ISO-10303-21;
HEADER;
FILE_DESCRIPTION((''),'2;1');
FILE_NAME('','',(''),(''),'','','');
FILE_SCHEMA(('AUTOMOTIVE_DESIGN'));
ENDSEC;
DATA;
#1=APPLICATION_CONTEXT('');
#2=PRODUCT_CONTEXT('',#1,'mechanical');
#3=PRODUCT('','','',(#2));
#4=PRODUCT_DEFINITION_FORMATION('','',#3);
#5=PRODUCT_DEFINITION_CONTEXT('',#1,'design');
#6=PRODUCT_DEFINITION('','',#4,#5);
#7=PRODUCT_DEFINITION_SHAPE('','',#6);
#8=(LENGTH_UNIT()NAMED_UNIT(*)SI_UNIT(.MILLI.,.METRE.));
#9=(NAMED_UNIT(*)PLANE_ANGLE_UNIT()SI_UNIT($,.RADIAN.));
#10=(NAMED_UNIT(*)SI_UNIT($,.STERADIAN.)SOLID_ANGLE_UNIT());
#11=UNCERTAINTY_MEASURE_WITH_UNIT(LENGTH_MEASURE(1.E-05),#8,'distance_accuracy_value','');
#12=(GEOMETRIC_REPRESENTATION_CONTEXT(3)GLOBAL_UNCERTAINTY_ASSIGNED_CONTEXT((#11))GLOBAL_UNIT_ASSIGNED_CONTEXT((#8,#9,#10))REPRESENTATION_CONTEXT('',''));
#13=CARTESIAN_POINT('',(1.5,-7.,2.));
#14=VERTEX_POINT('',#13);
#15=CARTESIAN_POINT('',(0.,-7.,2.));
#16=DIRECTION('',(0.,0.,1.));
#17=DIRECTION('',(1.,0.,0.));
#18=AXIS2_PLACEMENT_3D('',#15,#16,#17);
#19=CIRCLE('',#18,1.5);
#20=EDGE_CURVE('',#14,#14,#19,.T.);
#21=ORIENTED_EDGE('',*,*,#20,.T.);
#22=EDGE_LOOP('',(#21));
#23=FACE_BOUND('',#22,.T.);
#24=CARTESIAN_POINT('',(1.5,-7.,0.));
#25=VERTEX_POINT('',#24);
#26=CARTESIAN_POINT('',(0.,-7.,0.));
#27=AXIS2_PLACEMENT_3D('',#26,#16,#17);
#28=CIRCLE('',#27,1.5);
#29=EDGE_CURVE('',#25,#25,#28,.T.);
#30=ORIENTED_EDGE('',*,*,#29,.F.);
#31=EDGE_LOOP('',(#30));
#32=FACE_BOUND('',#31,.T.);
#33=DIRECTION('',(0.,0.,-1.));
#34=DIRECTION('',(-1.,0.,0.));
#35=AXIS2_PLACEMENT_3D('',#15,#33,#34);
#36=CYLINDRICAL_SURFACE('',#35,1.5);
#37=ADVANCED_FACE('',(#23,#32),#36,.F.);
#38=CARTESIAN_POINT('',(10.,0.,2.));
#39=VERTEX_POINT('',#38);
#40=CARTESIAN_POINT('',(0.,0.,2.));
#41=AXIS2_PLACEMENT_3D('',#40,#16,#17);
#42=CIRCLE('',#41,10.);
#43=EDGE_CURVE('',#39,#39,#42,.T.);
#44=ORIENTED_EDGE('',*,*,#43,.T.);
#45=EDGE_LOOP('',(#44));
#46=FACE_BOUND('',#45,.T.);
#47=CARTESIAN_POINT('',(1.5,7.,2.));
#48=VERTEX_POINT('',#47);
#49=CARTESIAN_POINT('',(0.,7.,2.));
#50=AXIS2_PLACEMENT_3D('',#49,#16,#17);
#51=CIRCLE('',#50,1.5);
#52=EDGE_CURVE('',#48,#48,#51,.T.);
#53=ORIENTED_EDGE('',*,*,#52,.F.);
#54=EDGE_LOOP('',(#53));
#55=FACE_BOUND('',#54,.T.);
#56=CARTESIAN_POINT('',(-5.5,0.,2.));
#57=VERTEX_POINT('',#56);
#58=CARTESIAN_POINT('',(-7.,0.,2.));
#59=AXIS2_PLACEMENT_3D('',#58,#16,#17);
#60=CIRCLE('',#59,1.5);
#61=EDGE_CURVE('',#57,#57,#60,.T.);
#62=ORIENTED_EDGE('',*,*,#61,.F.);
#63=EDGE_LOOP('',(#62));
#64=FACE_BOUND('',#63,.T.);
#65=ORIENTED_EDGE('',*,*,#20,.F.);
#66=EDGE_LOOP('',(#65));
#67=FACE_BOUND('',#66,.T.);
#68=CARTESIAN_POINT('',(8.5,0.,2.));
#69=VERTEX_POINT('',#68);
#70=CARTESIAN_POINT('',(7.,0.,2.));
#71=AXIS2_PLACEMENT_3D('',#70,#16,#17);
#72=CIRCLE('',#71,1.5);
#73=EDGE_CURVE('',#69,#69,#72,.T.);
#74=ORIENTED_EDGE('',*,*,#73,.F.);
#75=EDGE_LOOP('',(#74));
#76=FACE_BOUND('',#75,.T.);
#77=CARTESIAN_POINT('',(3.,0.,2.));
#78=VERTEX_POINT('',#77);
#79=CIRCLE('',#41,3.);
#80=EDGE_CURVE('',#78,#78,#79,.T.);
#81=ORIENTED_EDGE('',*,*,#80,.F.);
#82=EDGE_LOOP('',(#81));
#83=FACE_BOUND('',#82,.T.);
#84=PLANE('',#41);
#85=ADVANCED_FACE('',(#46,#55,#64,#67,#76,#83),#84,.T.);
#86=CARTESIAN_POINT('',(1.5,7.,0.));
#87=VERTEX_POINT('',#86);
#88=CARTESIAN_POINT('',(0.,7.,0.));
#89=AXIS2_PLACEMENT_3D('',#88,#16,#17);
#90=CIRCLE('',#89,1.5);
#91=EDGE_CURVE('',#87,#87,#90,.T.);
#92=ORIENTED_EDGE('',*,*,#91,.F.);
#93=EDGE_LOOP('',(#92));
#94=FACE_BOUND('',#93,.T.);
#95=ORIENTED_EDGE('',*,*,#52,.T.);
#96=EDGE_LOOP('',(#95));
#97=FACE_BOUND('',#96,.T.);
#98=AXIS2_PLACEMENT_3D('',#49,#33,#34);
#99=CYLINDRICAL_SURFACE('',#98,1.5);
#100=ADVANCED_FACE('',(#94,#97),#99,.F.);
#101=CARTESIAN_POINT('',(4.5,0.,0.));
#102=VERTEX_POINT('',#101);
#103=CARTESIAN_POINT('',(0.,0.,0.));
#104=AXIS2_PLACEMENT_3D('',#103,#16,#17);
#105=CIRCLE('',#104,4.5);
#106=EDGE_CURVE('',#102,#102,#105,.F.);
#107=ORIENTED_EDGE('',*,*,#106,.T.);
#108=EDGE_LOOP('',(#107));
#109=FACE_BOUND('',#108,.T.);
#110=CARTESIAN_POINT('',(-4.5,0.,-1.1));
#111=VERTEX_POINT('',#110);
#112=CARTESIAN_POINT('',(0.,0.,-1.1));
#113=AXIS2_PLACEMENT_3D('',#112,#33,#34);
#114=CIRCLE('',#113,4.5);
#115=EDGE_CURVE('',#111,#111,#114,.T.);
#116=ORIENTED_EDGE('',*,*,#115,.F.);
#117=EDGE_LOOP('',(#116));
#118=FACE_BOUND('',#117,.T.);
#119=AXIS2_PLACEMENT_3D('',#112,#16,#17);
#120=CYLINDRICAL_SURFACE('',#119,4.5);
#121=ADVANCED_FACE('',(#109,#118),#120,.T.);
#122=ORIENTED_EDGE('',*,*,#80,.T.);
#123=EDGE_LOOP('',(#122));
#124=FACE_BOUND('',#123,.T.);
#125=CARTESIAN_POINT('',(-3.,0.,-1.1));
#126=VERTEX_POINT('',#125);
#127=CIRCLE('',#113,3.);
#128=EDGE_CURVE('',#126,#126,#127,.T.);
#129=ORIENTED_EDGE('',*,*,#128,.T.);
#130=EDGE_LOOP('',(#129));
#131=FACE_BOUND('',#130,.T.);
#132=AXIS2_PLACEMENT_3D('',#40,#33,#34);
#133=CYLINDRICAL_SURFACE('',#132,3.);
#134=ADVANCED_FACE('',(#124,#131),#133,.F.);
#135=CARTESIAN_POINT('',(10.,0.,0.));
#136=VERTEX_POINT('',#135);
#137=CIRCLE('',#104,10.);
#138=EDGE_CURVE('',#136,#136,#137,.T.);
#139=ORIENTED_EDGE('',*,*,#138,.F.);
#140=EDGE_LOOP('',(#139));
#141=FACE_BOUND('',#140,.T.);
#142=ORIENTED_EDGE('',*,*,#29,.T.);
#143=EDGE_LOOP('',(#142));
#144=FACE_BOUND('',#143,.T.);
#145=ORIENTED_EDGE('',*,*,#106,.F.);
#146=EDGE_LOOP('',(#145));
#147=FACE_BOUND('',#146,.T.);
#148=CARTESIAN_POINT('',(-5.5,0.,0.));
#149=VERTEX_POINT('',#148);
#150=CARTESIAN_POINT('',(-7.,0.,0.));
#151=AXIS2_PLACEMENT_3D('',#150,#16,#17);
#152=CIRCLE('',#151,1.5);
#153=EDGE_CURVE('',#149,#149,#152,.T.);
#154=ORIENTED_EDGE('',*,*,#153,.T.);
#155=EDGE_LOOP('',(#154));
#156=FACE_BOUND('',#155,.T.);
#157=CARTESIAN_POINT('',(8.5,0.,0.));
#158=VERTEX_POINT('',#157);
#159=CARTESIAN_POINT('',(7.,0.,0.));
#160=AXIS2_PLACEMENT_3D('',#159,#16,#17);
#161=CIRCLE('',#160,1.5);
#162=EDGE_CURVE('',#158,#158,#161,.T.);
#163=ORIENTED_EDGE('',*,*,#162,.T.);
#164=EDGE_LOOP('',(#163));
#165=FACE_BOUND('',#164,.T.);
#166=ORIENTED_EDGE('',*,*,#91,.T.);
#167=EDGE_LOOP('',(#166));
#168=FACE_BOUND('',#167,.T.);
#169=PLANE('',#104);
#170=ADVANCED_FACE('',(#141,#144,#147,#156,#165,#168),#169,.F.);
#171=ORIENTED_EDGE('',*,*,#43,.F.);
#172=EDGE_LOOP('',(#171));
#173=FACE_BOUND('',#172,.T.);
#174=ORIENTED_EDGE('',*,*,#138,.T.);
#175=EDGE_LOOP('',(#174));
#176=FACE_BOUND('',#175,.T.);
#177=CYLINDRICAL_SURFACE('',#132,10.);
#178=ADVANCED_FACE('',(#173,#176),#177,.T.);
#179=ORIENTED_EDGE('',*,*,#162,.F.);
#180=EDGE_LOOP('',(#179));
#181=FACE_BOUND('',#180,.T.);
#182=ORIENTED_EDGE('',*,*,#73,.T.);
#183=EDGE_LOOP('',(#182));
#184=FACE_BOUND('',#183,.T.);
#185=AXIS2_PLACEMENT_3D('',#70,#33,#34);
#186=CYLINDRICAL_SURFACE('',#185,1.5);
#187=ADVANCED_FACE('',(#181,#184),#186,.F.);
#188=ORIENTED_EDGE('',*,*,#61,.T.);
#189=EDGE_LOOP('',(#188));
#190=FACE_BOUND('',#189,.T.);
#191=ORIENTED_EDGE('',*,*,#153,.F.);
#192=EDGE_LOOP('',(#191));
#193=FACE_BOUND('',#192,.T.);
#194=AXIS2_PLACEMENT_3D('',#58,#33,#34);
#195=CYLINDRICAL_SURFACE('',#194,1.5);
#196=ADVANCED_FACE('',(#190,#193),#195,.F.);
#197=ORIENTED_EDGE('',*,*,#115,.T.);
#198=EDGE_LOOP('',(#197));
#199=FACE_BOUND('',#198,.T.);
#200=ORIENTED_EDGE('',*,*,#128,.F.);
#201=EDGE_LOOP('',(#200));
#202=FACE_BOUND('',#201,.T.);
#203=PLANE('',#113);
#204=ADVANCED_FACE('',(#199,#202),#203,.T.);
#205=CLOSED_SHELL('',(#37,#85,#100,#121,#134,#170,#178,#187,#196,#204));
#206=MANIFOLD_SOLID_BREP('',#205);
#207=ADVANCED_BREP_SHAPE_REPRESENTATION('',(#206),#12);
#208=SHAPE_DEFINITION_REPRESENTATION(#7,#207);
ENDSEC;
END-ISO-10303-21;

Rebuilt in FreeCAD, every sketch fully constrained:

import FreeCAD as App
import Part
import Sketcher

V = App.Vector

doc = App.newDocument("Part")
body = doc.addObject("PartDesign::Body", "Body")

# Sketch on XY plane
sketch1 = doc.addObject("Sketcher::SketchObject", "Sketch")
body.addObject(sketch1)
sketch1.AttachmentSupport = (doc.XY_Plane, [""])
sketch1.MapMode = "FlatFace"
sketch1.addGeometry(Part.Circle(V(0, 0, 0), V(0, 0, 1), 10), False)
sketch1.addGeometry(Part.Circle(V(0, -7, 0), V(0, 0, 1), 1.5), False)
sketch1.addGeometry(Part.Circle(V(-7, 0, 0), V(0, 0, 1), 1.5), False)
sketch1.addGeometry(Part.Circle(V(0, 0, 0), V(0, 0, 1), 3), False)
sketch1.addGeometry(Part.Circle(V(7, 0, 0), V(0, 0, 1), 1.5), False)
sketch1.addGeometry(Part.Circle(V(0, 7, 0), V(0, 0, 1), 1.5), False)
sketch1.addConstraint(Sketcher.Constraint("Coincident", 0, 3, -1, 1))
sketch1.addConstraint(Sketcher.Constraint("Coincident", 3, 3, -1, 1))
sketch1.addConstraint(Sketcher.Constraint("Equal", 1, 2))
sketch1.addConstraint(Sketcher.Constraint("Equal", 2, 4))
sketch1.addConstraint(Sketcher.Constraint("Equal", 4, 5))
sketch1.addConstraint(Sketcher.Constraint("Symmetric", 2, 3, 4, 3, -1, 1))
sketch1.addConstraint(Sketcher.Constraint("Symmetric", 1, 3, 5, 3, -1, 1))
sketch1.addConstraint(Sketcher.Constraint("PointOnObject", 1, 3, -2))
sketch1.addConstraint(Sketcher.Constraint("PointOnObject", 2, 3, -1))
sketch1.addConstraint(Sketcher.Constraint("Diameter", 0, 20.0))
sketch1.addConstraint(Sketcher.Constraint("Diameter", 1, 3.0))
sketch1.addConstraint(Sketcher.Constraint("Diameter", 3, 6.0))
sketch1.addConstraint(Sketcher.Constraint("DistanceY", 1, 3, -1, 1, 7.0))
sketch1.addConstraint(Sketcher.Constraint("DistanceX", 2, 3, -1, 1, 7.0))
pad1 = doc.addObject("PartDesign::Pad", "Pad")
body.addObject(pad1)
pad1.Profile = sketch1
pad1.Length = 2

# Sketch on XY plane
sketch2 = doc.addObject("Sketcher::SketchObject", "Sketch001")
body.addObject(sketch2)
sketch2.AttachmentSupport = (doc.XY_Plane, [""])
sketch2.MapMode = "FlatFace"
sketch2.AttachmentOffset = App.Placement(V(0, 0, -1.1), App.Rotation())
sketch2.addGeometry(Part.Circle(V(0, 0, 0), V(0, 0, 1), 4.5), False)
sketch2.addGeometry(Part.Circle(V(0, 0, 0), V(0, 0, 1), 3), False)
sketch2.addConstraint(Sketcher.Constraint("Coincident", 0, 3, -1, 1))
sketch2.addConstraint(Sketcher.Constraint("Coincident", 1, 3, -1, 1))
sketch2.addConstraint(Sketcher.Constraint("Diameter", 0, 9.0))
sketch2.addConstraint(Sketcher.Constraint("Diameter", 1, 6.0))
pad2 = doc.addObject("PartDesign::Pad", "Pad001")
body.addObject(pad2)
pad2.Profile = sketch2
pad2.Length = 1.1

doc.recompute()
